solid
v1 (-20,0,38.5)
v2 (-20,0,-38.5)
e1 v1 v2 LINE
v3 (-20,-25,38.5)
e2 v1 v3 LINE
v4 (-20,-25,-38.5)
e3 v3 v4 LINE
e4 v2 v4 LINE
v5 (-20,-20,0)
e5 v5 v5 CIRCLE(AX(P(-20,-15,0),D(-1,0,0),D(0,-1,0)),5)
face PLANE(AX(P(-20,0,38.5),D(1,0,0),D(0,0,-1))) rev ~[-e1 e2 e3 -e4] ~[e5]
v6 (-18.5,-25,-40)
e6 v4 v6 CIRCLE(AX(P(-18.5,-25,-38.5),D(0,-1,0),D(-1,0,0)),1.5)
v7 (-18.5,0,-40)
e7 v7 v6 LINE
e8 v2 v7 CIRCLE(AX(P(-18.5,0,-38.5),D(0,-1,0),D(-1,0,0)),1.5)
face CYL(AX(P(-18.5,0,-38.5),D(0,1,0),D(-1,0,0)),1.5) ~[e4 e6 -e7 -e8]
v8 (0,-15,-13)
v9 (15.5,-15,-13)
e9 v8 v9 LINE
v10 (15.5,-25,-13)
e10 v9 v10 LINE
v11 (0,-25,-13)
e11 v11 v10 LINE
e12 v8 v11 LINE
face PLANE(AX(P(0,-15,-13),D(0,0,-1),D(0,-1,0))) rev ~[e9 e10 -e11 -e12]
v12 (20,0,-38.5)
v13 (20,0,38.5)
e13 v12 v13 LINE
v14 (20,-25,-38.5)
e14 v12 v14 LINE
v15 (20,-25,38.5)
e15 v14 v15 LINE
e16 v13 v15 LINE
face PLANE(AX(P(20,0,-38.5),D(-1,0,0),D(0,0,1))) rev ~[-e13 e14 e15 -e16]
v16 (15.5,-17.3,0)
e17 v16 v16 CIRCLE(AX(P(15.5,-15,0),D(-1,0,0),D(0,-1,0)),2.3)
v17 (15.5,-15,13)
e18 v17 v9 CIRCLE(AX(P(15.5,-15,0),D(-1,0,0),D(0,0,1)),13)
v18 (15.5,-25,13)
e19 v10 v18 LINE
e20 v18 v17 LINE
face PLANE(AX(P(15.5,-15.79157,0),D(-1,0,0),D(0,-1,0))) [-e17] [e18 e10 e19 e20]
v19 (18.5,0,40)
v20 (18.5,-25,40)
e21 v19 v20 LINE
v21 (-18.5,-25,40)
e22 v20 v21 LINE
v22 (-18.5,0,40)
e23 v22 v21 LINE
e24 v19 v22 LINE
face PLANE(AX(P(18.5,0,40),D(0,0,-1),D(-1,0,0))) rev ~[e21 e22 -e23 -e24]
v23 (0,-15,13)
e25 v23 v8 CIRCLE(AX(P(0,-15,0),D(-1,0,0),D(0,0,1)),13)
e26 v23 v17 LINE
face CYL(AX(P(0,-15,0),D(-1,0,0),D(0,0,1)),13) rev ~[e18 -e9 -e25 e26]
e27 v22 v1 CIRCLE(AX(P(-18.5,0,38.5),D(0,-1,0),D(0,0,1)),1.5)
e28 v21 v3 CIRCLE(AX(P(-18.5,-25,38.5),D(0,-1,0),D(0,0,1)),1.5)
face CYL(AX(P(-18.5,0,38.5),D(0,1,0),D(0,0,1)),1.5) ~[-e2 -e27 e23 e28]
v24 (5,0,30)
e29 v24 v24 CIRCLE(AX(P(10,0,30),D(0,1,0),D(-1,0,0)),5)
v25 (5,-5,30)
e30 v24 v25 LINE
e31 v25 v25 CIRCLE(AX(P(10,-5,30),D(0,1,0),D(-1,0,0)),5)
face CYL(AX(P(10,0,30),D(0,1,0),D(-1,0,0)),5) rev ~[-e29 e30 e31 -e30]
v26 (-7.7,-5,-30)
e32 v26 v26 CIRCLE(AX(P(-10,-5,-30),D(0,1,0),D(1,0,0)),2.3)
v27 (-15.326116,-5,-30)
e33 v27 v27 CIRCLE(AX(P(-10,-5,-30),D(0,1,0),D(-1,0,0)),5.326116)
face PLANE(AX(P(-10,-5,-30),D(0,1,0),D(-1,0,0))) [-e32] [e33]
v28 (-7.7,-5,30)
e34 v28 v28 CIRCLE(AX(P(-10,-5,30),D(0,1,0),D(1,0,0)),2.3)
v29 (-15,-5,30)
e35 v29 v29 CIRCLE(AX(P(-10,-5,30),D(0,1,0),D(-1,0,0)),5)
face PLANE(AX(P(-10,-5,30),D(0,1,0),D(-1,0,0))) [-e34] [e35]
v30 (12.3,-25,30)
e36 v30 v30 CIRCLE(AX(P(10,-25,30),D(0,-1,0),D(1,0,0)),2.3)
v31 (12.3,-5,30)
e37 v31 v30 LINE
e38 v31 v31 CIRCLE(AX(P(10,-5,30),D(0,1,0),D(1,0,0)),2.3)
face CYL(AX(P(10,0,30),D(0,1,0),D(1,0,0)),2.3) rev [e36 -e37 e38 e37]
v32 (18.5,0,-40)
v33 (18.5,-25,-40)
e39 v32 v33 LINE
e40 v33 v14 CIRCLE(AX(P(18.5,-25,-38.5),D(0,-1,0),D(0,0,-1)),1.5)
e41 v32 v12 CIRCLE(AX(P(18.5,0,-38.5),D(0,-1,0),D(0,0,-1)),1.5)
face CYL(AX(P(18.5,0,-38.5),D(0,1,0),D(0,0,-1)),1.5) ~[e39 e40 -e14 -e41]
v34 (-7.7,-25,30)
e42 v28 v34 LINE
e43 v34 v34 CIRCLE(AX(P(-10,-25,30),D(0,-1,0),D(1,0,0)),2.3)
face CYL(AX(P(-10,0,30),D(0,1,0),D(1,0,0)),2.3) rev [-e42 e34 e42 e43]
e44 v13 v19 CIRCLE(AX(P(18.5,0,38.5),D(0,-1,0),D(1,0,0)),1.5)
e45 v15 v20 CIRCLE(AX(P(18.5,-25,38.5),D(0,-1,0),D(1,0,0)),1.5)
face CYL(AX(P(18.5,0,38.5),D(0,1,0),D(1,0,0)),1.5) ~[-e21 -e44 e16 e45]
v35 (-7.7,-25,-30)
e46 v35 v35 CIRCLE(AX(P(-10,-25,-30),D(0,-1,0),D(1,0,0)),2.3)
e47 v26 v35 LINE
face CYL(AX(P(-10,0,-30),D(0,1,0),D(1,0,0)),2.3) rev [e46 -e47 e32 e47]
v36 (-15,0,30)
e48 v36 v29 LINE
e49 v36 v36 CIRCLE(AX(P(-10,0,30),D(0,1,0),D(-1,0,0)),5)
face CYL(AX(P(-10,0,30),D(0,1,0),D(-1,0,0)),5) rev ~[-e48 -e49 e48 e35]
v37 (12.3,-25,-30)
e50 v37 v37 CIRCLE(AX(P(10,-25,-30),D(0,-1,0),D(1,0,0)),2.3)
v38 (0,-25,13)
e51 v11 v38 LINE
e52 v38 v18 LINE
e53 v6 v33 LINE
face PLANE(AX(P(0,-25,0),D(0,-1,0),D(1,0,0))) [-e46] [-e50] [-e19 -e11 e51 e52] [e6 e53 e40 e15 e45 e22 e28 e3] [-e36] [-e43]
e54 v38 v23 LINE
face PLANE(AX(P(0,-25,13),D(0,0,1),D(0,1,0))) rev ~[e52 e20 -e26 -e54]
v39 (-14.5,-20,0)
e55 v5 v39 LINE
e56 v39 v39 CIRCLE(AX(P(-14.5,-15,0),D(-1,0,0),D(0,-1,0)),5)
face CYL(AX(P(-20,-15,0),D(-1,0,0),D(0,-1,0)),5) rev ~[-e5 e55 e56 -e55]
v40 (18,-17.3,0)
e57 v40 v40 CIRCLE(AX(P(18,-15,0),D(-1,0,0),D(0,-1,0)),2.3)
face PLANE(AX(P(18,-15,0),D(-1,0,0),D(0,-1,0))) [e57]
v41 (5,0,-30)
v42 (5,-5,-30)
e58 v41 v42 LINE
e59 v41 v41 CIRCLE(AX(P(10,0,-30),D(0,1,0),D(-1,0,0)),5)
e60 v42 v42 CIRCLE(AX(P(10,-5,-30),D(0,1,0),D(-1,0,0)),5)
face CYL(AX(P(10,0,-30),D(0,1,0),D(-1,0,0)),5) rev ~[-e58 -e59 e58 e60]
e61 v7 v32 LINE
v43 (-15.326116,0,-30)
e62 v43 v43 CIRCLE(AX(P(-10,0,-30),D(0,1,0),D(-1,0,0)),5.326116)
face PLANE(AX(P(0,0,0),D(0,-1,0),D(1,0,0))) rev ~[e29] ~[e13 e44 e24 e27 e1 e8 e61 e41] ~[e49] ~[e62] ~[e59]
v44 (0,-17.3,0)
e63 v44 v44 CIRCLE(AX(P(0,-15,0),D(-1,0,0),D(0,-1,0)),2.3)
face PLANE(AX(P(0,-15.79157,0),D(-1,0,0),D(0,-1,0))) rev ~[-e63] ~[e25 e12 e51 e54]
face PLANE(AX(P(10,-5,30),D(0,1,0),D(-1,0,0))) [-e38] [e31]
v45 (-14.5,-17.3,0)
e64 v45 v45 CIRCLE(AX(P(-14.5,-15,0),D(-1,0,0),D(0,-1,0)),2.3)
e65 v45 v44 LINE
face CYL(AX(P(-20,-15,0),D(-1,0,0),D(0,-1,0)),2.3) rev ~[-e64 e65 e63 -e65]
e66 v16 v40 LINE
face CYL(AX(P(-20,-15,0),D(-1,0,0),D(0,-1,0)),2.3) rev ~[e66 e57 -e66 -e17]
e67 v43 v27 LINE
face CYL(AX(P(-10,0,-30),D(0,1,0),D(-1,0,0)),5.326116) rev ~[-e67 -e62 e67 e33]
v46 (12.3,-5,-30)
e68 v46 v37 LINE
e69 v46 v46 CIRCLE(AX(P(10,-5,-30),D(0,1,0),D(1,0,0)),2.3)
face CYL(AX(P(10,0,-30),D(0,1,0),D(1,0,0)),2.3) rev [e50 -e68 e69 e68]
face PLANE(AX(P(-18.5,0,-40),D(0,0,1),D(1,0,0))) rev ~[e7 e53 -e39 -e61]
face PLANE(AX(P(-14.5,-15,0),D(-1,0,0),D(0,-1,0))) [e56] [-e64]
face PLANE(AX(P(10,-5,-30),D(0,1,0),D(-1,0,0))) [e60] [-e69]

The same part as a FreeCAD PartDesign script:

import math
import FreeCAD as App
import Part
import Sketcher

V = App.Vector
Q = App.Units.Quantity

doc = App.newDocument("Part")
body = doc.addObject("PartDesign::Body", "Body")

# Sketch on XZ plane
sketch1 = body.newObject("Sketcher::SketchObject", "Sketch")
sketch1.AttachmentSupport = (doc.getObject("XZ_Plane"), [""])
sketch1.MapMode = "FlatFace"
sketch1.addGeometry([
    Part.ArcOfCircle(Part.Circle(V(18.5, -38.5, 0), V(0, 0, 1), 1.5), math.radians(-90), math.radians(0)),  # 0
    Part.LineSegment(V(20, -38.5, 0), V(20, 38.5, 0)),  # 1
    Part.ArcOfCircle(Part.Circle(V(18.5, 38.5, 0), V(0, 0, 1), 1.5), math.radians(0), math.radians(90)),  # 2
    Part.LineSegment(V(18.5, 40, 0), V(-18.5, 40, 0)),  # 3
    Part.ArcOfCircle(Part.Circle(V(-18.5, 38.5, 0), V(0, 0, 1), 1.5), math.radians(90), math.radians(180)),  # 4
    Part.LineSegment(V(-20, 38.5, 0), V(-20, -38.5, 0)),  # 5
    Part.ArcOfCircle(Part.Circle(V(-18.5, -38.5, 0), V(0, 0, 1), 1.5), math.radians(180), math.radians(270)),  # 6
    Part.LineSegment(V(-18.5, -40, 0), V(18.5, -40, 0)),  # 7
    Part.Circle(V(-10, -30, 0), V(0, 0, 1), 2.3),  # 8
    Part.Circle(V(10, -30, 0), V(0, 0, 1), 2.3),  # 9
    Part.Circle(V(-10, 30, 0), V(0, 0, 1), 2.3),  # 10
    Part.Circle(V(10, 30, 0), V(0, 0, 1), 2.3),  # 11
], False)
sketch1.addConstraint([
    Sketcher.Constraint("Tangent", 0, 2, 1, 1),
    Sketcher.Constraint("Tangent", 1, 2, 2, 1),
    Sketcher.Constraint("Tangent", 2, 2, 3, 1),
    Sketcher.Constraint("Tangent", 3, 2, 4, 1),
    Sketcher.Constraint("Tangent", 4, 2, 5, 1),
    Sketcher.Constraint("Tangent", 5, 2, 6, 1),
    Sketcher.Constraint("Tangent", 6, 2, 7, 1),
    Sketcher.Constraint("Tangent", 7, 2, 0, 1),
    Sketcher.Constraint("Vertical", 1),
    Sketcher.Constraint("Horizontal", 3),
    Sketcher.Constraint("Vertical", 5),
    Sketcher.Constraint("Horizontal", 7),
    Sketcher.Constraint("Equal", 0, 2),
    Sketcher.Constraint("Equal", 2, 4),
    Sketcher.Constraint("Equal", 4, 6),
    Sketcher.Constraint("Equal", 8, 9),
    Sketcher.Constraint("Equal", 9, 10),
    Sketcher.Constraint("Equal", 10, 11),
    Sketcher.Constraint("Symmetric", 0, 3, 4, 3, -1, 1),
    Sketcher.Constraint("Symmetric", 9, 3, 10, 3, -1, 1),
    Sketcher.Constraint("Symmetric", 8, 3, 11, 3, -1, 1),
    Sketcher.Constraint("Symmetric", 8, 3, 9, 3, -2),
    Sketcher.Constraint("Diameter", 8, Q("4.6 mm")),
    Sketcher.Constraint("Radius", 0, Q("1.5 mm")),
    Sketcher.Constraint("DistanceX", 3, 2, 3, 1, Q("37 mm")),
    Sketcher.Constraint("DistanceY", 1, 1, 1, 2, Q("77 mm")),
    Sketcher.Constraint("DistanceX", 8, 3, -1, 1, Q("10 mm")),
    Sketcher.Constraint("DistanceY", 8, 3, -1, 1, Q("30 mm")),
])
pad1 = body.newObject("PartDesign::Pad", "Pad")
pad1.Profile = sketch1
pad1.Length = 25

# Sketch on XZ plane
sketch2 = body.newObject("Sketcher::SketchObject", "Sketch001")
sketch2.AttachmentSupport = (doc.getObject("XZ_Plane"), [""])
sketch2.MapMode = "FlatFace"
sketch2.addGeometry([
    Part.Circle(V(10, 30, 0), V(0, 0, 1), 5),
    Part.Circle(V(-10, 30, 0), V(0, 0, 1), 5),
    Part.Circle(V(-10, -30, 0), V(0, 0, 1), 5.326116),
    Part.Circle(V(10, -30, 0), V(0, 0, 1), 5),
], False)
sketch2.addConstraint([
    Sketcher.Constraint("Equal", 0, 1),
    Sketcher.Constraint("Equal", 1, 3),
    Sketcher.Constraint("Symmetric", 0, 3, 2, 3, -1, 1),
    Sketcher.Constraint("Symmetric", 1, 3, 3, 3, -1, 1),
    Sketcher.Constraint("Symmetric", 0, 3, 1, 3, -2),
    Sketcher.Constraint("Diameter", 0, Q("10 mm")),
    Sketcher.Constraint("DistanceX", -1, 1, 0, 3, Q("10 mm")),
    Sketcher.Constraint("DistanceY", -1, 1, 0, 3, Q("30 mm")),
    Sketcher.Constraint("Diameter", 2, Q("10.652232 mm")),
])
pocket1 = body.newObject("PartDesign::Pocket", "Pocket")
pocket1.Profile = sketch2
pocket1.Length = 5
pocket1.Reversed = True

# Sketch on YZ plane
sketch3 = body.newObject("Sketcher::SketchObject", "Sketch002")
sketch3.AttachmentSupport = (doc.getObject("YZ_Plane"), [""])
sketch3.MapMode = "FlatFace"
sketch3.addGeometry([
    Part.LineSegment(V(-15, -13, 0), V(-25, -13, 0)),
    Part.LineSegment(V(-25, -13, 0), V(-25, 13, 0)),
    Part.LineSegment(V(-25, 13, 0), V(-15, 13, 0)),
    Part.ArcOfCircle(Part.Circle(V(-15, 0, 0), V(0, 0, 1), 13), math.radians(-90), math.radians(90)),
], False)
sketch3.addConstraint([
    Sketcher.Constraint("Coincident", 0, 2, 1, 1),
    Sketcher.Constraint("Coincident", 1, 2, 2, 1),
    Sketcher.Constraint("Tangent", 2, 2, 3, 2),
    Sketcher.Constraint("Tangent", 3, 1, 0, 1),
    Sketcher.Constraint("Horizontal", 0),
    Sketcher.Constraint("Vertical", 1),
    Sketcher.Constraint("Horizontal", 2),
    Sketcher.Constraint("PointOnObject", 3, 3, -1),
    Sketcher.Constraint("Radius", 3, Q("13 mm")),
    Sketcher.Constraint("DistanceX", 0, 2, 0, 1, Q("10 mm")),
    Sketcher.Constraint("DistanceX", 3, 3, -1, 1, Q("15 mm")),
])
pocket2 = body.newObject("PartDesign::Pocket", "Pocket001")
pocket2.Profile = sketch3
pocket2.Length = 15.5
pocket2.Reversed = True

# Sketch on YZ plane
sketch4 = body.newObject("Sketcher::SketchObject", "Sketch003")
sketch4.AttachmentSupport = (doc.getObject("YZ_Plane"), [""])
sketch4.MapMode = "FlatFace"
sketch4.AttachmentOffset = App.Placement(V(0, 0, -20), App.Rotation())
sketch4.addGeometry(Part.Circle(V(-15, 0, 0), V(0, 0, 1), 2.3), False)
sketch4.addConstraint([
    Sketcher.Constraint("PointOnObject", 0, 3, -1),
    Sketcher.Constraint("Diameter", 0, Q("4.6 mm")),
    Sketcher.Constraint("DistanceX", 0, 3, -1, 1, Q("15 mm")),
])
pocket3 = body.newObject("PartDesign::Pocket", "Pocket002")
pocket3.Profile = sketch4
pocket3.Length = 38
pocket3.Reversed = True

# Sketch on YZ plane
sketch5 = body.newObject("Sketcher::SketchObject", "Sketch004")
sketch5.AttachmentSupport = (doc.getObject("YZ_Plane"), [""])
sketch5.MapMode = "FlatFace"
sketch5.AttachmentOffset = App.Placement(V(0, 0, -20), App.Rotation())
sketch5.addGeometry(Part.Circle(V(-15, 0, 0), V(0, 0, 1), 5), False)
sketch5.addConstraint([
    Sketcher.Constraint("PointOnObject", 0, 3, -1),
    Sketcher.Constraint("Diameter", 0, Q("10 mm")),
    Sketcher.Constraint("DistanceX", 0, 3, -1, 1, Q("15 mm")),
])
pocket4 = body.newObject("PartDesign::Pocket", "Pocket003")
pocket4.Profile = sketch5
pocket4.Length = 5.5
pocket4.Reversed = True

doc.recompute()
